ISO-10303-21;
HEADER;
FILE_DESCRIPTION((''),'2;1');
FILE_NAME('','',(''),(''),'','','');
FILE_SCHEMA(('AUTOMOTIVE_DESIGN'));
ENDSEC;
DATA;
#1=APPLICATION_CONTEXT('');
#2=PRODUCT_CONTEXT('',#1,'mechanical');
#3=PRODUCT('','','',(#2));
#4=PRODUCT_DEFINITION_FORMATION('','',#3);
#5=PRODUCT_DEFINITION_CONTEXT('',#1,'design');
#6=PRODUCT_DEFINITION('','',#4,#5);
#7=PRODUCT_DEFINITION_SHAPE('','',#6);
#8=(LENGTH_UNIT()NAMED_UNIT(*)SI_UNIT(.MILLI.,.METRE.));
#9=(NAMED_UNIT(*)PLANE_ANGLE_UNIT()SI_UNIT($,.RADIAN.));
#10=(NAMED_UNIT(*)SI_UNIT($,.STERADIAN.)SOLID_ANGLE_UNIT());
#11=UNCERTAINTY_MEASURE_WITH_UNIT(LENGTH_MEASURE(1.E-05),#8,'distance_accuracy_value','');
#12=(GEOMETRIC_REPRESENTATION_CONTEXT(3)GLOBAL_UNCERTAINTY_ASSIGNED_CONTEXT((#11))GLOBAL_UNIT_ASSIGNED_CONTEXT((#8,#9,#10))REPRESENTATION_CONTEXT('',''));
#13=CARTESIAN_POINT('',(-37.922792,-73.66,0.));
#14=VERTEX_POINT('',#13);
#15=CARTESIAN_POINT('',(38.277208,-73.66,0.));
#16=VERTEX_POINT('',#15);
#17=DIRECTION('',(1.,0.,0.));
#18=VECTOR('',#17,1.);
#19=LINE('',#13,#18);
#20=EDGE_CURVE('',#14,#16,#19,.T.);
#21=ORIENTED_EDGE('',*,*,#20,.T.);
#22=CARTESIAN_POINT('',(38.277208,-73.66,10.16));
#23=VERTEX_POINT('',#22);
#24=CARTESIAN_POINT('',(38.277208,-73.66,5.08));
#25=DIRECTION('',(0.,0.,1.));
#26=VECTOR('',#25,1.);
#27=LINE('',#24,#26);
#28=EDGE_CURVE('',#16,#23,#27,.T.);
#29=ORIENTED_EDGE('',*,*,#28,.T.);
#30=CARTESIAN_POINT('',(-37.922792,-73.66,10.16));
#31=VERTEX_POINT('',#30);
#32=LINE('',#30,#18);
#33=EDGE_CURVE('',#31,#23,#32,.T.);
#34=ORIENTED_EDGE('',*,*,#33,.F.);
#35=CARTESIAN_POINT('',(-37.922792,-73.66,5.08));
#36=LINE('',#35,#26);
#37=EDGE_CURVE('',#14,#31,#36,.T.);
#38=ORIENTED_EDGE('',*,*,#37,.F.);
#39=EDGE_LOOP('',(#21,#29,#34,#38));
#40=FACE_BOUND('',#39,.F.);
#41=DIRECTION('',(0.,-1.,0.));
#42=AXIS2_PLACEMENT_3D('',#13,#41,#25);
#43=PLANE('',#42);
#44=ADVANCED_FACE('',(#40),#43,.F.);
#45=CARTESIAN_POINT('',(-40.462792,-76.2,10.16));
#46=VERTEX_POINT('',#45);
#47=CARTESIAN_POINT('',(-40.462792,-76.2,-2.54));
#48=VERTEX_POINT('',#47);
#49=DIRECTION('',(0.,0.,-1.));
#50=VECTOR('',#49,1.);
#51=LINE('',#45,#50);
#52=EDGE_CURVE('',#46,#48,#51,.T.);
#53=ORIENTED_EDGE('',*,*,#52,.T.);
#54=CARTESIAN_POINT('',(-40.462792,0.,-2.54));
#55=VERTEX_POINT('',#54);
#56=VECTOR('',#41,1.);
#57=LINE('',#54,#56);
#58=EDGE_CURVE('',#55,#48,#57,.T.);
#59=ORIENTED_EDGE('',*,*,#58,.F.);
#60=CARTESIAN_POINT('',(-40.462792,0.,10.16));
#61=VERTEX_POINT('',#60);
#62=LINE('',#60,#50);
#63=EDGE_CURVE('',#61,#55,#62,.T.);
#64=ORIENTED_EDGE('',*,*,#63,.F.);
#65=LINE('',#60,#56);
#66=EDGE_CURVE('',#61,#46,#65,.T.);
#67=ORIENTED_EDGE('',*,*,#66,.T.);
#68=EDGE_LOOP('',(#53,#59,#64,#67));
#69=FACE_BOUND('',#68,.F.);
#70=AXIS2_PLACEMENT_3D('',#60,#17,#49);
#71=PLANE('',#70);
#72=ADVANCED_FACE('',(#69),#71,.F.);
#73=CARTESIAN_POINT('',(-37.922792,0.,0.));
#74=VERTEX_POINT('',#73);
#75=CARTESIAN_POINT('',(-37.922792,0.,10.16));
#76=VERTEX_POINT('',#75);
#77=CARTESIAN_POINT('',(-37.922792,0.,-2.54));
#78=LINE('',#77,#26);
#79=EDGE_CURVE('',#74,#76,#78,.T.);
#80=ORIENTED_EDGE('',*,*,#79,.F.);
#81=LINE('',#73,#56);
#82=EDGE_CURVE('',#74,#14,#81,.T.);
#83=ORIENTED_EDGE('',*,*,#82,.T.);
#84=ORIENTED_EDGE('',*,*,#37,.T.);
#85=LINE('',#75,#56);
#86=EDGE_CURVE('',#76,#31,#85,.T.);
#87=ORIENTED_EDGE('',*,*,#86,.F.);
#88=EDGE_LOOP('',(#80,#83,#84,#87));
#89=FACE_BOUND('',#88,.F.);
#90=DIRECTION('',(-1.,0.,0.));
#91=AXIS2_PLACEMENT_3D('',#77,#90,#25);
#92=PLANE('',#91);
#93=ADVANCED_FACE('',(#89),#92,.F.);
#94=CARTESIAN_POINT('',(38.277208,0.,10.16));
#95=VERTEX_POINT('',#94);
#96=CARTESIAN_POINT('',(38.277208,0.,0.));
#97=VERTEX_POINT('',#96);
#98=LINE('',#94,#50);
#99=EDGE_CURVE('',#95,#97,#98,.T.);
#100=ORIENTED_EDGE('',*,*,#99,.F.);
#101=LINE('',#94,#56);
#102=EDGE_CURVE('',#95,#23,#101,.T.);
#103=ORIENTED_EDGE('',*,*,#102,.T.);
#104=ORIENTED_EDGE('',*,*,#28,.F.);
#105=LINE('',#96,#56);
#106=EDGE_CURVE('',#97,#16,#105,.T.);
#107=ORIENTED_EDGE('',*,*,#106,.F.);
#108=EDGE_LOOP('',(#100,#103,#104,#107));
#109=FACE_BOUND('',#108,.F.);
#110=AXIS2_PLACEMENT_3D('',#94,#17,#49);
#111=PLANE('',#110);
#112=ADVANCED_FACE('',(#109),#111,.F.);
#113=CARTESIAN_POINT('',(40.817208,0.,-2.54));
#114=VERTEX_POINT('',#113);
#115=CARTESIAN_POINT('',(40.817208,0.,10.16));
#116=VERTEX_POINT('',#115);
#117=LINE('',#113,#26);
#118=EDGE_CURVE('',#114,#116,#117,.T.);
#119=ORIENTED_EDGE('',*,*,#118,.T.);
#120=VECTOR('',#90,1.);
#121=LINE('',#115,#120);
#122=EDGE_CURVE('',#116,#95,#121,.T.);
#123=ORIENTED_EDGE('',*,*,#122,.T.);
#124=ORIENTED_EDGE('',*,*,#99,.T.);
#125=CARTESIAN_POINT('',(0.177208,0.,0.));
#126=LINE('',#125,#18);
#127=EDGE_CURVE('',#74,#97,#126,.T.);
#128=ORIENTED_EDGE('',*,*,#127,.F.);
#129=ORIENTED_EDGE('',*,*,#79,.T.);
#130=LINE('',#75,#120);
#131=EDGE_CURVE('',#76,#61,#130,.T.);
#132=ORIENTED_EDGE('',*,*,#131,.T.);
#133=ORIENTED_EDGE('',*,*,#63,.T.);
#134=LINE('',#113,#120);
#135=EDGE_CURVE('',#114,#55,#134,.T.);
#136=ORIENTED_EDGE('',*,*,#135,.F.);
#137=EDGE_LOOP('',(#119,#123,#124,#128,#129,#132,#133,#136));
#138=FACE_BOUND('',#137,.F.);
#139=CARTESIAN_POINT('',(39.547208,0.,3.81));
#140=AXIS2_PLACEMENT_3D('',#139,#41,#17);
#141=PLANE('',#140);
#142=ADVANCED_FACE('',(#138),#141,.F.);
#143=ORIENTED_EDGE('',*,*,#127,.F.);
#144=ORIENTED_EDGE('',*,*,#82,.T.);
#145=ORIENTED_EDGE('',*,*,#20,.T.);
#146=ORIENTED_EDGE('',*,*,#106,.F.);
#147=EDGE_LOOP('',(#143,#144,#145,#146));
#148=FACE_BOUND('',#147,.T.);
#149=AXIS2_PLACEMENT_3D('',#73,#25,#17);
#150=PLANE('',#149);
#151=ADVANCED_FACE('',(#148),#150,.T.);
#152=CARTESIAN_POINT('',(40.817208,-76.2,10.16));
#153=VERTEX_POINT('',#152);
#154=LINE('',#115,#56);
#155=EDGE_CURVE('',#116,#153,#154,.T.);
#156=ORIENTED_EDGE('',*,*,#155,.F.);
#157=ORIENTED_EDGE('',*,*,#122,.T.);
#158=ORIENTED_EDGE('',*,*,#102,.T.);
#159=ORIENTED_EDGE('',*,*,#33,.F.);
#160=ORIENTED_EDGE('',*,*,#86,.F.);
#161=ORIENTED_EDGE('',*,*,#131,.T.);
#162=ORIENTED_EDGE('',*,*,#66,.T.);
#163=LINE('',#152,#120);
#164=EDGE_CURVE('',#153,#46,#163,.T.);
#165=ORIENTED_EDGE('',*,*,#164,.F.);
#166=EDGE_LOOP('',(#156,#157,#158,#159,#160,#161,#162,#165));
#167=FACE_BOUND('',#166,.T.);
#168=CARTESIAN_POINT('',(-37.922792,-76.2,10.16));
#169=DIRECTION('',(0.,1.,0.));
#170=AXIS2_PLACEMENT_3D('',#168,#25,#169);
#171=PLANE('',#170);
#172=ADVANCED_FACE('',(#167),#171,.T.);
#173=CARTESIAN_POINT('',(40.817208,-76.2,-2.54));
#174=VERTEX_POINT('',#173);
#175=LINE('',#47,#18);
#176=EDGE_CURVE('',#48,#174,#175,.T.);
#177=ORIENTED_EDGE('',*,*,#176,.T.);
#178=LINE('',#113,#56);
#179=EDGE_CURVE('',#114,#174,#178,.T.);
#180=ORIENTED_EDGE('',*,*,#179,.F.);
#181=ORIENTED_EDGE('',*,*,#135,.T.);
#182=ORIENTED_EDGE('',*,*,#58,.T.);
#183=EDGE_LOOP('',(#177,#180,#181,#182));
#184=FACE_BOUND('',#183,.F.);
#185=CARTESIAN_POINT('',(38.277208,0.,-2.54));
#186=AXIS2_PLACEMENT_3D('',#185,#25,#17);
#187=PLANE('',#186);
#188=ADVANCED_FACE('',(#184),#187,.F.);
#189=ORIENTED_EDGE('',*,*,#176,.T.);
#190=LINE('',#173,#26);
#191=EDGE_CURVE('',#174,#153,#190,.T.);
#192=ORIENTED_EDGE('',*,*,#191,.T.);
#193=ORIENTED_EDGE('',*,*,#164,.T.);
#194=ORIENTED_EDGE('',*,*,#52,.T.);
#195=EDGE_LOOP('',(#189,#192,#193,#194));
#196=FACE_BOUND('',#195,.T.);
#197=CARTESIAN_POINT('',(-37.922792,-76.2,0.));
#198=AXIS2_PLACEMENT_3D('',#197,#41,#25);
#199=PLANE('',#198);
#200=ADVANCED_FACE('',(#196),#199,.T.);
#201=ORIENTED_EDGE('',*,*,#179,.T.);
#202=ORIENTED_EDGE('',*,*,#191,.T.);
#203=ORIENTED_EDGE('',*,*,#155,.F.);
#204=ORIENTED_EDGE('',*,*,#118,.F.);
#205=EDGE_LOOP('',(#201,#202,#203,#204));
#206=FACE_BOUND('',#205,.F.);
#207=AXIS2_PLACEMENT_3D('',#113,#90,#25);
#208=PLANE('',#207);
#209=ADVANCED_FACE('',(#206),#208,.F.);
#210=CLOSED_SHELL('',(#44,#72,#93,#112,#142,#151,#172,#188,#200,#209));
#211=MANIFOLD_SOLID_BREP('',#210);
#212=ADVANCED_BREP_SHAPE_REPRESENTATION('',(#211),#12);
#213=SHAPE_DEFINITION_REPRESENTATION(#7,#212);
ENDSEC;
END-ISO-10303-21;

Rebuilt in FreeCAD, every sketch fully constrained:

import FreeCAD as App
import Part
import Sketcher

V = App.Vector
Q = App.Units.Quantity


def add_polygon(sketch, points):
    """Adds a closed chain of lines whose ends are joined by coincident constraints."""
    first, n = sketch.GeometryCount, len(points)
    for a, b in zip(points, points[1:] + points[:1]):
        sketch.addGeometry(Part.LineSegment(App.Vector(*a, 0), App.Vector(*b, 0)), False)
    for i in range(n):
        sketch.addConstraint(Sketcher.Constraint("Coincident", first + i, 2, first + (i + 1) % n, 1))

doc = App.newDocument("Part")
body = doc.addObject("PartDesign::Body", "Body")

sketch1 = body.newObject("Sketcher::SketchObject", "Sketch")
sketch1.AttachmentSupport = (doc.getObject("XZ_Plane"), [""])
sketch1.MapMode = "FlatFace"
add_polygon(sketch1, [(-37.9, 0), (-37.9, -2.5), (38.3, -2.5), (38.3, 0)])
sketch1.addConstraint(Sketcher.Constraint("Vertical", 0))
sketch1.addConstraint(Sketcher.Constraint("Horizontal", 1))
sketch1.addConstraint(Sketcher.Constraint("Vertical", 2))
sketch1.addConstraint(Sketcher.Constraint("Horizontal", 3))
sketch1.addConstraint(Sketcher.Constraint("PointOnObject", 2, 2, -1))
sketch1.addConstraint(Sketcher.Constraint("DistanceX", 1, 1, 1, 2, Q("3 in")))
sketch1.addConstraint(Sketcher.Constraint("DistanceY", 0, 2, 0, 1, Q("0.1 in")))
sketch1.addConstraint(Sketcher.Constraint("DistanceX", -1, 1, 1, 2, Q("38.277208 mm")))
pad1 = body.newObject("PartDesign::Pad", "Pad")
pad1.Profile = sketch1
pad1.Length = Q("3 in")

sketch2 = body.newObject("Sketcher::SketchObject", "Sketch001")
sketch2.AttachmentSupport = (doc.getObject("XZ_Plane"), [""])
sketch2.MapMode = "FlatFace"
add_polygon(sketch2, [(-37.9, -2.5), (-37.9, 10.2), (-40.5, 10.2), (-40.5, -2.5)])
sketch2.addConstraint(Sketcher.Constraint("Vertical", 0))
sketch2.addConstraint(Sketcher.Constraint("Horizontal", 1))
sketch2.addConstraint(Sketcher.Constraint("Vertical", 2))
sketch2.addConstraint(Sketcher.Constraint("Horizontal", 3))
sketch2.addConstraint(Sketcher.Constraint("DistanceX", 1, 2, 1, 1, Q("0.1 in")))
sketch2.addConstraint(Sketcher.Constraint("DistanceY", 0, 1, 0, 2, Q("0.5 in")))
sketch2.addConstraint(Sketcher.Constraint("DistanceY", -1, 1, 0, 2, Q("0.4 in")))
sketch2.addConstraint(Sketcher.Constraint("DistanceX", 0, 2, -1, 1, Q("37.922792 mm")))
pad2 = body.newObject("PartDesign::Pad", "Pad001")
pad2.Profile = sketch2
pad2.Length = Q("3 in")

sketch3 = body.newObject("Sketcher::SketchObject", "Sketch002")
sketch3.AttachmentSupport = (doc.getObject("XZ_Plane"), [""])
sketch3.MapMode = "FlatFace"
add_polygon(sketch3, [(38.3, 10.2), (38.3, -2.5), (40.8, -2.5), (40.8, 10.2)])
sketch3.addConstraint(Sketcher.Constraint("Vertical", 0))
sketch3.addConstraint(Sketcher.Constraint("Horizontal", 1))
sketch3.addConstraint(Sketcher.Constraint("Vertical", 2))
sketch3.addConstraint(Sketcher.Constraint("Horizontal", 3))
sketch3.addConstraint(Sketcher.Constraint("DistanceX", 1, 1, 1, 2, Q("0.1 in")))
sketch3.addConstraint(Sketcher.Constraint("DistanceY", 0, 2, 0, 1, Q("0.5 in")))
sketch3.addConstraint(Sketcher.Constraint("DistanceY", 0, 2, -1, 1, Q("0.1 in")))
sketch3.addConstraint(Sketcher.Constraint("DistanceX", -1, 1, 0, 2, Q("38.277208 mm")))
pad3 = body.newObject("PartDesign::Pad", "Pad002")
pad3.Profile = sketch3
pad3.Length = Q("3 in")

sketch4 = body.newObject("Sketcher::SketchObject", "Sketch003")
sketch4.AttachmentSupport = (doc.getObject("YZ_Plane"), [""])
sketch4.MapMode = "FlatFace"
sketch4.AttachmentOffset = App.Placement(V(0, 0, -37.922792), App.Rotation())
add_polygon(sketch4, [(-76.2, 10.2), (-76.2, 0), (-73.7, 0), (-73.7, 10.2)])
sketch4.addConstraint(Sketcher.Constraint("Vertical", 0))
sketch4.addConstraint(Sketcher.Constraint("Horizontal", 1))
sketch4.addConstraint(Sketcher.Constraint("Vertical", 2))
sketch4.addConstraint(Sketcher.Constraint("Horizontal", 3))
sketch4.addConstraint(Sketcher.Constraint("PointOnObject", 0, 2, -1))
sketch4.addConstraint(Sketcher.Constraint("DistanceX", 1, 1, 1, 2, Q("0.1 in")))
sketch4.addConstraint(Sketcher.Constraint("DistanceY", 0, 2, 0, 1, Q("0.4 in")))
sketch4.addConstraint(Sketcher.Constraint("DistanceX", 0, 2, -1, 1, Q("3 in")))
pad4 = body.newObject("PartDesign::Pad", "Pad003")
pad4.Profile = sketch4
pad4.Length = Q("3 in")

doc.recompute()
